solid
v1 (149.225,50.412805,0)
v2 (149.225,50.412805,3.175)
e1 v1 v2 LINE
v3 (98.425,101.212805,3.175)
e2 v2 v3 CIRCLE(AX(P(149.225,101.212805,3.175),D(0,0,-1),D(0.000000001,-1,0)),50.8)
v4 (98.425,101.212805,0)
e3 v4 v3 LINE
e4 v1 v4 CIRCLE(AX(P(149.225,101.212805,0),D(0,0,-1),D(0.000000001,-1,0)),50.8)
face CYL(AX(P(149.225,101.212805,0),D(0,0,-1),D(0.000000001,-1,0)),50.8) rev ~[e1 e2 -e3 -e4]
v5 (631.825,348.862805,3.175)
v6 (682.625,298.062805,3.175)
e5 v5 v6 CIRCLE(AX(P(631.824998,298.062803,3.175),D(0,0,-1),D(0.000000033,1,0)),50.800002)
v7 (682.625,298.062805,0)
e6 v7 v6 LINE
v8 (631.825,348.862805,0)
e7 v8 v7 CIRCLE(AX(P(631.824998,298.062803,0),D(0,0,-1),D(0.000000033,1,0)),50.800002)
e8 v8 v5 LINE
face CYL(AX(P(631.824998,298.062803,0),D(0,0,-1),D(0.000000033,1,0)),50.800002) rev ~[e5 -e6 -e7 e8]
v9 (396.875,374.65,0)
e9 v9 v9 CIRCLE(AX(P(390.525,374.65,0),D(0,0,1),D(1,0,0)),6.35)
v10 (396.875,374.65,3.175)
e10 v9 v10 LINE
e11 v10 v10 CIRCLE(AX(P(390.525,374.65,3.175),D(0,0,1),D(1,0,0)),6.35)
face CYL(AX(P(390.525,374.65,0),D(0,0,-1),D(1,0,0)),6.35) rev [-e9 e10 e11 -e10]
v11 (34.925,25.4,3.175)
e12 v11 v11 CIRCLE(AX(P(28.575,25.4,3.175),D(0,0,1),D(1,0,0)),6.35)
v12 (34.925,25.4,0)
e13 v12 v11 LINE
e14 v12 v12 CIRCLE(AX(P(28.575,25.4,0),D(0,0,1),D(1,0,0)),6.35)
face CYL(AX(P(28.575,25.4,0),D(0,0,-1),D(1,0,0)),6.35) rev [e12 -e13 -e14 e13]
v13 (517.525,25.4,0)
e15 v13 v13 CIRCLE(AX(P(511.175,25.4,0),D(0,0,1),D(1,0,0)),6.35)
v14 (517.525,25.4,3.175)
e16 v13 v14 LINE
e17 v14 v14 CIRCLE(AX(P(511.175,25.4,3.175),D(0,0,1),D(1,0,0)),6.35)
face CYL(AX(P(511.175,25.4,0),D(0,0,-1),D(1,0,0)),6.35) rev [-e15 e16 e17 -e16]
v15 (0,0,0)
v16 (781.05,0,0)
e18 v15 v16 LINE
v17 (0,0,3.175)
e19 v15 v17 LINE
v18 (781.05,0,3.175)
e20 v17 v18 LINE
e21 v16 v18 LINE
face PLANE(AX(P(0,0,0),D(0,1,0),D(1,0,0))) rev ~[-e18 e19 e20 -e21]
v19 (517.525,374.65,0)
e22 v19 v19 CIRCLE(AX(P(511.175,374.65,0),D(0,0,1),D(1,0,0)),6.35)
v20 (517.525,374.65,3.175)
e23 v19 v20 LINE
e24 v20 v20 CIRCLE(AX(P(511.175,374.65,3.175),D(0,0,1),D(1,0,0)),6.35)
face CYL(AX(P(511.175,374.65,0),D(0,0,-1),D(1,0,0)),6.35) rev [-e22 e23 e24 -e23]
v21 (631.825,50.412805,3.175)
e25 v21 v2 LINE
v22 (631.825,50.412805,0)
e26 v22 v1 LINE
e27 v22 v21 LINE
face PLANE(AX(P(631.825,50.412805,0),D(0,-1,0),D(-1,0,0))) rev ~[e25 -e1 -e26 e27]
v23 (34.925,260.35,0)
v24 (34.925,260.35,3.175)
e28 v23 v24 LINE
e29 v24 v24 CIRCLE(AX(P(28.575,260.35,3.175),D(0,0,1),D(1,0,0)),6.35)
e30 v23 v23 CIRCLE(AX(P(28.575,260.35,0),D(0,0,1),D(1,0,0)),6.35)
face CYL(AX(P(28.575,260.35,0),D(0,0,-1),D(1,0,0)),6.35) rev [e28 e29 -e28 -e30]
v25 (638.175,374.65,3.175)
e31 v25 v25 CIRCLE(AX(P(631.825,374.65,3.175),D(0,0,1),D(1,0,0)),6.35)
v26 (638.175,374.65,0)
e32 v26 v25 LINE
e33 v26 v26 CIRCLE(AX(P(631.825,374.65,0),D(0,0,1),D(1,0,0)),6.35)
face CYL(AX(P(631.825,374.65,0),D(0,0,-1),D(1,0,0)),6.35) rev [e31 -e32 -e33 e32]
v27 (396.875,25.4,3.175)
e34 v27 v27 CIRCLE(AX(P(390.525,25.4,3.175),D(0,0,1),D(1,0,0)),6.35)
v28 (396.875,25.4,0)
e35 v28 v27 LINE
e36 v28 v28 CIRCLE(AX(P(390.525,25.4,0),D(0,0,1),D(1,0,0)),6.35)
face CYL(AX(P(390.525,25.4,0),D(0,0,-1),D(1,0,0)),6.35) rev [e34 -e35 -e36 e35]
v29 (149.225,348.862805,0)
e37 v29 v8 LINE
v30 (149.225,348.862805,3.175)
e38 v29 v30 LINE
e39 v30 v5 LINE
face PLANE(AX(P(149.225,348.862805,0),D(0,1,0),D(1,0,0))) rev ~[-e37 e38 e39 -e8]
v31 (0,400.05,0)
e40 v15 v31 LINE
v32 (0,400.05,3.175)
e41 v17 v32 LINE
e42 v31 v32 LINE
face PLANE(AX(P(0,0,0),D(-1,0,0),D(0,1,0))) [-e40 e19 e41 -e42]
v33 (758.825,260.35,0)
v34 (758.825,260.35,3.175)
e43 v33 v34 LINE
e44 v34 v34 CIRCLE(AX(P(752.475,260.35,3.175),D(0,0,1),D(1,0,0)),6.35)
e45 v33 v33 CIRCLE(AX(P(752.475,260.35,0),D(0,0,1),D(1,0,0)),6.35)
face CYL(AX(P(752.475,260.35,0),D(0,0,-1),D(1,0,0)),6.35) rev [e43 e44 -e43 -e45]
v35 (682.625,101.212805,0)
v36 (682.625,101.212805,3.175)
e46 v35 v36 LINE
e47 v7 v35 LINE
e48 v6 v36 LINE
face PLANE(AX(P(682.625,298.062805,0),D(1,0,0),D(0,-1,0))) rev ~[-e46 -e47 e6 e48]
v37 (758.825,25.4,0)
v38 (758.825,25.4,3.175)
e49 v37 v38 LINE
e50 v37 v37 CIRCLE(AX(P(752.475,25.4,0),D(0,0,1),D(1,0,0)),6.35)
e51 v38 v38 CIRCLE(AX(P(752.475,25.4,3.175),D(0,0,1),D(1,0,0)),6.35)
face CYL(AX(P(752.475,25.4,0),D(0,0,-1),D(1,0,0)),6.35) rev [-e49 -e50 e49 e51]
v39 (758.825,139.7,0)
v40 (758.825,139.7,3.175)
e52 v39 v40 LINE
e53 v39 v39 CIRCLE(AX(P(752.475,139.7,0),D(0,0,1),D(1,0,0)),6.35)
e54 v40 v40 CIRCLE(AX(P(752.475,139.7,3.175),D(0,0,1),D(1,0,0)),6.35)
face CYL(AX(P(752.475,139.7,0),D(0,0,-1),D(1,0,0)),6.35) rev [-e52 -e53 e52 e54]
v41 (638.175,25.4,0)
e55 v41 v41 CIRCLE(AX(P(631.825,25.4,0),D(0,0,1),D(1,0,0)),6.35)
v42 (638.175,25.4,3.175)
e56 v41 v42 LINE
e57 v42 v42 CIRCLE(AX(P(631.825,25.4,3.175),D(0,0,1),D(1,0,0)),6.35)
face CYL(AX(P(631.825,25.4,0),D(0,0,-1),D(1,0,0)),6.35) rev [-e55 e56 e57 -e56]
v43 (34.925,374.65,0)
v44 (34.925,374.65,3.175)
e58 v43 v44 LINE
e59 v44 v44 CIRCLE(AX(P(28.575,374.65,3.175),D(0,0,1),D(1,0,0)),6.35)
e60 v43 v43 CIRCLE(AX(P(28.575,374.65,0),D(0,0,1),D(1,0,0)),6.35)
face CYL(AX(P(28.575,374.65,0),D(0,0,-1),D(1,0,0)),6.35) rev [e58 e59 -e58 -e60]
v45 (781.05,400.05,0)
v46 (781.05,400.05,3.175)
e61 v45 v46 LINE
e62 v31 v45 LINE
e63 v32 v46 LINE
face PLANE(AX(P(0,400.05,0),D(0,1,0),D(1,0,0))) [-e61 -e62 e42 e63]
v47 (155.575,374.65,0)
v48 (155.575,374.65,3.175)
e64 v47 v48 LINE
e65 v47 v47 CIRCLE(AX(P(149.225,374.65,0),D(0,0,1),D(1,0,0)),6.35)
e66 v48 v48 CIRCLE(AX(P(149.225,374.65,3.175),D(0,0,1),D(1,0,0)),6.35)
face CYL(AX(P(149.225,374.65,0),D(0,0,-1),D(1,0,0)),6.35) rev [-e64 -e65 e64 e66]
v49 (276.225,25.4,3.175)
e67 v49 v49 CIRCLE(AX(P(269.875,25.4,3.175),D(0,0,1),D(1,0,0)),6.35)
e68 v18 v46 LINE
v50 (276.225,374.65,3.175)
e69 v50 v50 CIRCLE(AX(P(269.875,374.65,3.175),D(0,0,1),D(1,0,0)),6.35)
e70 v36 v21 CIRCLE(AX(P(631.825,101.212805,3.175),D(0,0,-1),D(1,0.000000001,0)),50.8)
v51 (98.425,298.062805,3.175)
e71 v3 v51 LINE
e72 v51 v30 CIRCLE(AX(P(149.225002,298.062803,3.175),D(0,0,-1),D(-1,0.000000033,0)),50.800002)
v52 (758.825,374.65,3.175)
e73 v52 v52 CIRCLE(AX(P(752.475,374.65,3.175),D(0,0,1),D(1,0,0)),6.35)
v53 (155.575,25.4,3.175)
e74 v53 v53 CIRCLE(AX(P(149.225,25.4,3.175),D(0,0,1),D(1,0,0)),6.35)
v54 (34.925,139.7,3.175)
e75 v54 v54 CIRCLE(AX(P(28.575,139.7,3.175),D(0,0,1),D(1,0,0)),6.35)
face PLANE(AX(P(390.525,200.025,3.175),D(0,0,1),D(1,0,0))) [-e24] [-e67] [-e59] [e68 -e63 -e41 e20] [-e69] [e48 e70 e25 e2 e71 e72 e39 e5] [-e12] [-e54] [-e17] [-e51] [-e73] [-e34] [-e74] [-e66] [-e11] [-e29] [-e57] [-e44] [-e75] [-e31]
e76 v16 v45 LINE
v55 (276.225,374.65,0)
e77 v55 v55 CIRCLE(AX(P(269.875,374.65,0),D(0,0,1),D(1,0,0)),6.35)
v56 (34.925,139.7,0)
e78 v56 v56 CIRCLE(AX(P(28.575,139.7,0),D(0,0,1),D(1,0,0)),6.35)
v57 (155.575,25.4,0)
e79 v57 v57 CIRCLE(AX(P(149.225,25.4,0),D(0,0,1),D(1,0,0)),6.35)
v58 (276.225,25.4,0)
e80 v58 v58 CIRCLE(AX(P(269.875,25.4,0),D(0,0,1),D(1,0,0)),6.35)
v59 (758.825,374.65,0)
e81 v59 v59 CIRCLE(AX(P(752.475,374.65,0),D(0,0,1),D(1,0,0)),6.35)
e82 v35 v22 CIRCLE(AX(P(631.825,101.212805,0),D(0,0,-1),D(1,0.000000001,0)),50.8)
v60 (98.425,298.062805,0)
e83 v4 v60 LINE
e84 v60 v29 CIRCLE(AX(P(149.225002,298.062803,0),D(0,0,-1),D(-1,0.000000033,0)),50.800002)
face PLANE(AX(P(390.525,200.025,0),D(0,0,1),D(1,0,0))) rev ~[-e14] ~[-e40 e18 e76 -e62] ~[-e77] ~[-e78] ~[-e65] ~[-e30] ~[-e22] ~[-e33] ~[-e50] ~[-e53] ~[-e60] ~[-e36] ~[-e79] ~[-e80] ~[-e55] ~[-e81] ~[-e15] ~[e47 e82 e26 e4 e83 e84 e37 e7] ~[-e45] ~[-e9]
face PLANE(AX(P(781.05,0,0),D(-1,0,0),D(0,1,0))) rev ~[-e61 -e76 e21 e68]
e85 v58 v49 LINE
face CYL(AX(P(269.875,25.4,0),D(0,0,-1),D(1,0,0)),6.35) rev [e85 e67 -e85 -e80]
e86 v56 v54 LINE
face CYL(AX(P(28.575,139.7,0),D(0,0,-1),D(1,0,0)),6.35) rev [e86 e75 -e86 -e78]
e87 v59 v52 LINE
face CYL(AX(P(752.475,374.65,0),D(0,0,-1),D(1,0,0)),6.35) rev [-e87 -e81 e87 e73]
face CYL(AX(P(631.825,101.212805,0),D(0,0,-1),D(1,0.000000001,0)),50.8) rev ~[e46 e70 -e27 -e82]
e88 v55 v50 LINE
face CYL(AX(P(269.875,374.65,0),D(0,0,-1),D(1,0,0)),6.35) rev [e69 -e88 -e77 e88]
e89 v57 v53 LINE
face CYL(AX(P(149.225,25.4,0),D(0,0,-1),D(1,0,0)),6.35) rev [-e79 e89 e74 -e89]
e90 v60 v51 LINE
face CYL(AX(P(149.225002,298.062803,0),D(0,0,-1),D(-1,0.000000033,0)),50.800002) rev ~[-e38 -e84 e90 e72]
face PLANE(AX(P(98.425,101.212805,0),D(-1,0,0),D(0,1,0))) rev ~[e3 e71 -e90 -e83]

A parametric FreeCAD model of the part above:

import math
import FreeCAD as App
import Part
import Sketcher
Q = App.Units.Quantity

doc = App.newDocument("Part")
body = doc.addObject("PartDesign::Body", "Body")

# Sketch on XY plane
sketch1 = body.newObject("Sketcher::SketchObject", "Sketch")
sketch1.AttachmentSupport = (doc.getObject("XY_Plane"), [""])
sketch1.MapMode = "FlatFace"
sketch1.addGeometry(Part.LineSegment(App.Vector(0, 400.05, 0), App.Vector(0, 0, 0)), False)
sketch1.addGeometry(Part.LineSegment(App.Vector(0, 0, 0), App.Vector(781.05, 0, 0)), False)
sketch1.addGeometry(Part.LineSegment(App.Vector(781.05, 0, 0), App.Vector(781.05, 400.05, 0)), False)
sketch1.addGeometry(Part.LineSegment(App.Vector(781.05, 400.05, 0), App.Vector(0, 400.05, 0)), False)
sketch1.addGeometry(Part.Circle(App.Vector(28.575, 25.4, 0), App.Vector(0, 0, 1), 6.35), False)
sketch1.addGeometry(Part.Circle(App.Vector(149.225, 25.4, 0), App.Vector(0, 0, 1), 6.35), False)
sketch1.addGeometry(Part.Circle(App.Vector(269.875, 25.4, 0), App.Vector(0, 0, 1), 6.35), False)
sketch1.addGeometry(Part.Circle(App.Vector(390.525, 25.4, 0), App.Vector(0, 0, 1), 6.35), False)
sketch1.addGeometry(Part.Circle(App.Vector(28.575, 139.7, 0), App.Vector(0, 0, 1), 6.35), False)
sketch1.addGeometry(Part.Circle(App.Vector(511.175, 25.4, 0), App.Vector(0, 0, 1), 6.35), False)
sketch1.addGeometry(Part.Circle(App.Vector(631.825, 25.4, 0), App.Vector(0, 0, 1), 6.35), False)
sketch1.addGeometry(Part.Circle(App.Vector(752.475, 25.4, 0), App.Vector(0, 0, 1), 6.35), False)
sketch1.addGeometry(Part.ArcOfCircle(Part.Circle(App.Vector(631.825, 101.212805, 0), App.Vector(0, 0, 1), 50.8), math.radians(-90), math.radians(0)), False)
sketch1.addGeometry(Part.LineSegment(App.Vector(631.825, 50.412805, 0), App.Vector(149.225, 50.412805, 0)), False)
sketch1.addGeometry(Part.ArcOfCircle(Part.Circle(App.Vector(149.225, 101.212805, 0), App.Vector(0, 0, 1), 50.8), math.radians(180), math.radians(270)), False)
sketch1.addGeometry(Part.LineSegment(App.Vector(98.425, 101.212805, 0), App.Vector(98.425, 298.062805, 0)), False)
sketch1.addGeometry(Part.ArcOfCircle(Part.Circle(App.Vector(149.225002, 298.062803, 0), App.Vector(0, 0, 1), 50.800002), math.radians(90.000002), math.radians(179.999998)), False)
sketch1.addGeometry(Part.LineSegment(App.Vector(149.225, 348.862805, 0), App.Vector(631.825, 348.862805, 0)), False)
sketch1.addGeometry(Part.ArcOfCircle(Part.Circle(App.Vector(631.824998, 298.062803, 0), App.Vector(0, 0, 1), 50.800002), math.radians(0.000002), math.radians(89.999998)), False)
sketch1.addGeometry(Part.LineSegment(App.Vector(682.625, 298.062805, 0), App.Vector(682.625, 101.212805, 0)), False)
sketch1.addGeometry(Part.Circle(App.Vector(752.475, 139.7, 0), App.Vector(0, 0, 1), 6.35), False)
sketch1.addGeometry(Part.Circle(App.Vector(28.575, 260.35, 0), App.Vector(0, 0, 1), 6.35), False)
sketch1.addGeometry(Part.Circle(App.Vector(28.575, 374.65, 0), App.Vector(0, 0, 1), 6.35), False)
sketch1.addGeometry(Part.Circle(App.Vector(149.225, 374.65, 0), App.Vector(0, 0, 1), 6.35), False)
sketch1.addGeometry(Part.Circle(App.Vector(269.875, 374.65, 0), App.Vector(0, 0, 1), 6.35), False)
sketch1.addGeometry(Part.Circle(App.Vector(390.525, 374.65, 0), App.Vector(0, 0, 1), 6.35), False)
sketch1.addGeometry(Part.Circle(App.Vector(752.475, 260.35, 0), App.Vector(0, 0, 1), 6.35), False)
sketch1.addGeometry(Part.Circle(App.Vector(511.175, 374.65, 0), App.Vector(0, 0, 1), 6.35), False)
sketch1.addGeometry(Part.Circle(App.Vector(631.825, 374.65, 0), App.Vector(0, 0, 1), 6.35), False)
sketch1.addGeometry(Part.Circle(App.Vector(752.475, 374.65, 0), App.Vector(0, 0, 1), 6.35), False)
sketch1.addConstraint(Sketcher.Constraint("Coincident", 0, 2, 1, 1))
sketch1.addConstraint(Sketcher.Constraint("Coincident", 1, 2, 2, 1))
sketch1.addConstraint(Sketcher.Constraint("Coincident", 2, 2, 3, 1))
sketch1.addConstraint(Sketcher.Constraint("Coincident", 3, 2, 0, 1))
sketch1.addConstraint(Sketcher.Constraint("Tangent", 12, 1, 13, 1))
sketch1.addConstraint(Sketcher.Constraint("Tangent", 13, 2, 14, 2))
sketch1.addConstraint(Sketcher.Constraint("Tangent", 14, 1, 15, 1))
sketch1.addConstraint(Sketcher.Constraint("Tangent", 15, 2, 16, 2))
sketch1.addConstraint(Sketcher.Constraint("Tangent", 16, 1, 17, 1))
sketch1.addConstraint(Sketcher.Constraint("Tangent", 17, 2, 18, 2))
sketch1.addConstraint(Sketcher.Constraint("Tangent", 18, 1, 19, 1))
sketch1.addConstraint(Sketcher.Constraint("Tangent", 19, 2, 12, 2))
sketch1.addConstraint(Sketcher.Constraint("Vertical", 0))
sketch1.addConstraint(Sketcher.Constraint("Horizontal", 1))
sketch1.addConstraint(Sketcher.Constraint("Vertical", 2))
sketch1.addConstraint(Sketcher.Constraint("Horizontal", 3))
sketch1.addConstraint(Sketcher.Constraint("Horizontal", 13))
sketch1.addConstraint(Sketcher.Constraint("Vertical", 15))
sketch1.addConstraint(Sketcher.Constraint("Horizontal", 17))
sketch1.addConstraint(Sketcher.Constraint("Vertical", 19))
sketch1.addConstraint(Sketcher.Constraint("Coincident", 0, 2, -1, 1))
sketch1.addConstraint(Sketcher.Constraint("Equal", 4, 5))
sketch1.addConstraint(Sketcher.Constraint("Equal", 5, 6))
sketch1.addConstraint(Sketcher.Constraint("Equal", 6, 7))
sketch1.addConstraint(Sketcher.Constraint("Equal", 7, 8))
sketch1.addConstraint(Sketcher.Constraint("Equal", 8, 9))
sketch1.addConstraint(Sketcher.Constraint("Equal", 9, 10))
sketch1.addConstraint(Sketcher.Constraint("Equal", 10, 11))
sketch1.addConstraint(Sketcher.Constraint("Equal", 12, 14))
sketch1.addConstraint(Sketcher.Constraint("Equal", 14, 16))
sketch1.addConstraint(Sketcher.Constraint("Equal", 16, 18))
sketch1.addConstraint(Sketcher.Constraint("Equal", 11, 20))
sketch1.addConstraint(Sketcher.Constraint("Equal", 20, 21))
sketch1.addConstraint(Sketcher.Constraint("Equal", 21, 22))
sketch1.addConstraint(Sketcher.Constraint("Equal", 22, 23))
sketch1.addConstraint(Sketcher.Constraint("Equal", 23, 24))
sketch1.addConstraint(Sketcher.Constraint("Equal", 24, 25))
sketch1.addConstraint(Sketcher.Constraint("Equal", 25, 26))
sketch1.addConstraint(Sketcher.Constraint("Equal", 26, 27))
sketch1.addConstraint(Sketcher.Constraint("Equal", 27, 28))
sketch1.addConstraint(Sketcher.Constraint("Equal", 28, 29))
sketch1.addConstraint(Sketcher.Constraint("Horizontal", 4, 3, 5, 3))
sketch1.addConstraint(Sketcher.Constraint("Horizontal", 5, 3, 6, 3))
sketch1.addConstraint(Sketcher.Constraint("Horizontal", 6, 3, 7, 3))
sketch1.addConstraint(Sketcher.Constraint("Horizontal", 7, 3, 9, 3))
sketch1.addConstraint(Sketcher.Constraint("Horizontal", 9, 3, 10, 3))
sketch1.addConstraint(Sketcher.Constraint("Horizontal", 10, 3, 11, 3))
sketch1.addConstraint(Sketcher.Constraint("Horizontal", 8, 3, 20, 3))
sketch1.addConstraint(Sketcher.Constraint("Horizontal", 22, 3, 23, 3))
sketch1.addConstraint(Sketcher.Constraint("Horizontal", 23, 3, 24, 3))
sketch1.addConstraint(Sketcher.Constraint("Horizontal", 24, 3, 25, 3))
sketch1.addConstraint(Sketcher.Constraint("Horizontal", 21, 3, 26, 3))
sketch1.addConstraint(Sketcher.Constraint("Horizontal", 25, 3, 27, 3))
sketch1.addConstraint(Sketcher.Constraint("Horizontal", 27, 3, 28, 3))
sketch1.addConstraint(Sketcher.Constraint("Horizontal", 28, 3, 29, 3))
sketch1.addConstraint(Sketcher.Constraint("Vertical", 4, 3, 8, 3))
sketch1.addConstraint(Sketcher.Constraint("Vertical", 10, 3, 12, 3))
sketch1.addConstraint(Sketcher.Constraint("Vertical", 5, 3, 14, 3))
sketch1.addConstraint(Sketcher.Constraint("Vertical", 11, 3, 20, 3))
sketch1.addConstraint(Sketcher.Constraint("Vertical", 8, 3, 21, 3))
sketch1.addConstraint(Sketcher.Constraint("Vertical", 21, 3, 22, 3))
sketch1.addConstraint(Sketcher.Constraint("Vertical", 16, 3, 23, 3))
sketch1.addConstraint(Sketcher.Constraint("Vertical", 6, 3, 24, 3))
sketch1.addConstraint(Sketcher.Constraint("Vertical", 7, 3, 25, 3))
sketch1.addConstraint(Sketcher.Constraint("Vertical", 20, 3, 26, 3))
sketch1.addConstraint(Sketcher.Constraint("Vertical", 9, 3, 27, 3))
sketch1.addConstraint(Sketcher.Constraint("Vertical", 18, 3, 28, 3))
sketch1.addConstraint(Sketcher.Constraint("Vertical", 26, 3, 29, 3))
sketch1.addConstraint(Sketcher.Constraint("Radius", 12, Q("2 in")))
sketch1.addConstraint(Sketcher.Constraint("Diameter", 4, Q("0.5 in")))
sketch1.addConstraint(Sketcher.Constraint("DistanceX", 13, 2, 13, 1, Q("19 in")))
sketch1.addConstraint(Sketcher.Constraint("DistanceY", -1, 1, 4, 3, Q("1 in")))
sketch1.addConstraint(Sketcher.Constraint("DistanceX", 4, 3, 9, 3, Q("19 in")))
sketch1.addConstraint(Sketcher.Constraint("DistanceX", 6, 3, 11, 3, Q("19 in")))
sketch1.addConstraint(Sketcher.Constraint("DistanceY", 29, 3, 2, 2, Q("1 in")))
sketch1.addConstraint(Sketcher.Constraint("DistanceX", 1, 1, 1, 2, Q("30.75 in")))
sketch1.addConstraint(Sketcher.Constraint("DistanceY", 0, 2, 0, 1, Q("15.75 in")))
sketch1.addConstraint(Sketcher.Constraint("DistanceY", 15, 1, 15, 2, Q("7.75 in")))
sketch1.addConstraint(Sketcher.Constraint("DistanceY", -1, 1, 8, 3, Q("5.5 in")))
sketch1.addConstraint(Sketcher.Constraint("DistanceX", 4, 3, 6, 3, Q("9.5 in")))
sketch1.addConstraint(Sketcher.Constraint("DistanceX", 5, 3, 7, 3, Q("9.5 in")))
sketch1.addConstraint(Sketcher.Constraint("DistanceY", 21, 3, 22, 3, Q("4.5 in")))
sketch1.addConstraint(Sketcher.Constraint("DistanceX", 4, 3, 5, 3, Q("4.75 in")))
sketch1.addConstraint(Sketcher.Constraint("DistanceX", -1, 1, 4, 3, Q("1.125 in")))
sketch1.addConstraint(Sketcher.Constraint("DistanceY", -1, 1, 12, 3, Q("101.212805 mm")))
pad1 = body.newObject("PartDesign::Pad", "Pad")
pad1.Profile = sketch1
pad1.Length = Q("0.125 in")

doc.recompute()
